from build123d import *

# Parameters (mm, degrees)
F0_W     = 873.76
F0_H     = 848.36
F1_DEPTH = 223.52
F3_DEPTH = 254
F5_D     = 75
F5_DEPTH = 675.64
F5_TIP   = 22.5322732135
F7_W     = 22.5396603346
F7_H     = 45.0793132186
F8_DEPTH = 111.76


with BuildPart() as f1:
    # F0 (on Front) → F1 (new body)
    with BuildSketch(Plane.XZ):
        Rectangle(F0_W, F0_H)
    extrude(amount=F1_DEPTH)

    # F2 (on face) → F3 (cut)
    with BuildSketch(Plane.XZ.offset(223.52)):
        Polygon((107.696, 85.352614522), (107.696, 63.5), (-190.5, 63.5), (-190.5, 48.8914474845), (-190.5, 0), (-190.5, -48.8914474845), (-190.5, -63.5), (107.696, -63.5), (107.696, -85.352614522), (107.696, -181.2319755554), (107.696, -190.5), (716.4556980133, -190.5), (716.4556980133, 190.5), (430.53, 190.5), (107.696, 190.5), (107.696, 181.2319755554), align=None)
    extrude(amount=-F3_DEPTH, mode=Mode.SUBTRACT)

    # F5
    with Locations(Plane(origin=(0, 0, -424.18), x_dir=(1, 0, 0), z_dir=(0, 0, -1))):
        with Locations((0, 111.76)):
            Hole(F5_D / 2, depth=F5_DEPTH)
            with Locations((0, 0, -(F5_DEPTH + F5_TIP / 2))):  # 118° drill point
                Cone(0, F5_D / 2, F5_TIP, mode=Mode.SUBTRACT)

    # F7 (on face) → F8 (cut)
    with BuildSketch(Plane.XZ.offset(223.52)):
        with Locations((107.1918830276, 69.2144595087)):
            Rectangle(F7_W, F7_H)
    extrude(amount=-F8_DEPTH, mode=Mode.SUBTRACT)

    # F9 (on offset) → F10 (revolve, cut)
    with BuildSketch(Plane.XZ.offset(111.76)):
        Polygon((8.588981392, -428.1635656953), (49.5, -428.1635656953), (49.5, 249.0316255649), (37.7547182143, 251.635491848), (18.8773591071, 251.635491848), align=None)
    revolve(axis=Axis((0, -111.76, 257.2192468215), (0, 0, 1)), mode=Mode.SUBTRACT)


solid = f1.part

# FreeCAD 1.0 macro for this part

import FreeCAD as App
import Part
import Sketcher
from FreeCAD import Vector
Q = App.Units.Quantity

doc = App.newDocument("Part")
body = doc.addObject("PartDesign::Body", "Body")

# Sketch on XZ plane
sketch1 = body.newObject("Sketcher::SketchObject", "Sketch")
sketch1.AttachmentSupport = (doc.getObject("XZ_Plane"), [""])
sketch1.MapMode = "FlatFace"
sketch1.addGeometry([
    Part.LineSegment(Vector(-437, 424, 0), Vector(-437, -424, 0)),
    Part.LineSegment(Vector(-437, -424, 0), Vector(437, -424, 0)),
    Part.LineSegment(Vector(437, -424, 0), Vector(437, 424, 0)),
    Part.LineSegment(Vector(437, 424, 0), Vector(-437, 424, 0)),
], False)
sketch1.addConstraint([
    Sketcher.Constraint("Coincident", 0, 2, 1, 1),
    Sketcher.Constraint("Coincident", 1, 2, 2, 1),
    Sketcher.Constraint("Coincident", 2, 2, 3, 1),
    Sketcher.Constraint("Coincident", 3, 2, 0, 1),
    Sketcher.Constraint("Vertical", 0),
    Sketcher.Constraint("Horizontal", 1),
    Sketcher.Constraint("Vertical", 2),
    Sketcher.Constraint("Horizontal", 3),
    Sketcher.Constraint("Symmetric", 0, 2, 2, 2, -1, 1),
    Sketcher.Constraint("DistanceX", 1, 1, 1, 2, Q("34.4 in")),
    Sketcher.Constraint("DistanceY", 0, 2, 0, 1, Q("33.4 in")),
])
pad1 = body.newObject("PartDesign::Pad", "Pad")
pad1.Profile = sketch1
pad1.Length = Q("8.8 in")

# Sketch on XZ plane
sketch2 = body.newObject("Sketcher::SketchObject", "Sketch001")
sketch2.AttachmentSupport = (doc.getObject("XZ_Plane"), [""])
sketch2.MapMode = "FlatFace"
sketch2.AttachmentOffset = App.Placement(Vector(0, 0, 8.8 * 25.4), App.Rotation())
sketch2.addGeometry([
    Part.LineSegment(Vector(108, 64, 0), Vector(-190, 64, 0)),  # 0
    Part.LineSegment(Vector(-190, 64, 0), Vector(-190, -64, 0)),  # 1
    Part.LineSegment(Vector(-190, -64, 0), Vector(108, -64, 0)),  # 2
    Part.LineSegment(Vector(108, -64, 0), Vector(108, -190, 0)),  # 3
    Part.LineSegment(Vector(108, -190, 0), Vector(716, -190, 0)),  # 4
    Part.LineSegment(Vector(716, -190, 0), Vector(716, 190, 0)),  # 5
    Part.LineSegment(Vector(716, 190, 0), Vector(108, 190, 0)),  # 6
    Part.LineSegment(Vector(108, 190, 0), Vector(108, 64, 0)),  # 7
], False)
sketch2.addConstraint([
    Sketcher.Constraint("Coincident", 0, 2, 1, 1),
    Sketcher.Constraint("Coincident", 1, 2, 2, 1),
    Sketcher.Constraint("Coincident", 2, 2, 3, 1),
    Sketcher.Constraint("Coincident", 3, 2, 4, 1),
    Sketcher.Constraint("Coincident", 4, 2, 5, 1),
    Sketcher.Constraint("Coincident", 5, 2, 6, 1),
    Sketcher.Constraint("Coincident", 6, 2, 7, 1),
    Sketcher.Constraint("Coincident", 7, 2, 0, 1),
    Sketcher.Constraint("Horizontal", 0),
    Sketcher.Constraint("Vertical", 1),
    Sketcher.Constraint("Horizontal", 2),
    Sketcher.Constraint("Vertical", 3),
    Sketcher.Constraint("Horizontal", 4),
    Sketcher.Constraint("Vertical", 5),
    Sketcher.Constraint("Horizontal", 6),
    Sketcher.Constraint("Vertical", 7),
    Sketcher.Constraint("Symmetric", 3, 2, 6, 2, -1),
    Sketcher.Constraint("Equal", 1, 3),
    Sketcher.Constraint("Equal", 3, 7),
    Sketcher.Constraint("DistanceY", 1, 2, 1, 1, Q("5 in")),
    Sketcher.Constraint("DistanceX", 0, 2, 0, 1, Q("11.74 in")),
    Sketcher.Constraint("DistanceX", 0, 2, -1, 1, Q("7.5 in")),
    Sketcher.Constraint("DistanceX", 4, 1, 4, 2, 608.759698),
])
pocket1 = body.newObject("PartDesign::Pocket", "Pocket")
pocket1.Profile = sketch2
pocket1.Length = Q("10 in")

# Sketch on XY plane
sketch3 = body.newObject("Sketcher::SketchObject", "Sketch002")
sketch3.AttachmentSupport = (doc.getObject("XY_Plane"), [""])
sketch3.MapMode = "FlatFace"
sketch3.AttachmentOffset = App.Placement(Vector(0, 0, -16.7 * 25.4), App.Rotation())
sketch3.addGeometry(Part.Circle(Vector(0, -112, 0), Vector(0, 0, 1), 38), False)
sketch3.addConstraint([
    Sketcher.Constraint("PointOnObject", 0, 3, -2),
    Sketcher.Constraint("DistanceY", 0, 3, -1, 1, Q("4.4 in")),
    Sketcher.Constraint("Diameter", 0, 75.0),
])
doc.recompute()
hole = body.newObject("PartDesign::Hole", "Hole")
hole.Profile = sketch3
hole.ThreadType = "None"
hole.Diameter = 75
hole.DepthType = "Dimension"
hole.Depth = Q("26.6 in")
hole.DrillPoint = "Angled"
hole.DrillPointAngle = 118
hole.Reversed = True

# Sketch on XZ plane
sketch4 = body.newObject("Sketcher::SketchObject", "Sketch003")
sketch4.AttachmentSupport = (doc.getObject("XZ_Plane"), [""])
sketch4.MapMode = "FlatFace"
sketch4.AttachmentOffset = App.Placement(Vector(0, 0, 8.8 * 25.4), App.Rotation())
sketch4.addGeometry([
    Part.LineSegment(Vector(96, 92, 0), Vector(96, 47, 0)),
    Part.LineSegment(Vector(96, 47, 0), Vector(118, 47, 0)),
    Part.LineSegment(Vector(118, 47, 0), Vector(118, 92, 0)),
    Part.LineSegment(Vector(118, 92, 0), Vector(96, 92, 0)),
], False)
sketch4.addConstraint([
    Sketcher.Constraint("Coincident", 0, 2, 1, 1),
    Sketcher.Constraint("Coincident", 1, 2, 2, 1),
    Sketcher.Constraint("Coincident", 2, 2, 3, 1),
    Sketcher.Constraint("Coincident", 3, 2, 0, 1),
    Sketcher.Constraint("Vertical", 0),
    Sketcher.Constraint("Horizontal", 1),
    Sketcher.Constraint("Vertical", 2),
    Sketcher.Constraint("Horizontal", 3),
    Sketcher.Constraint("DistanceX", 1, 1, 1, 2, 22.53966),
    Sketcher.Constraint("DistanceY", 0, 2, 0, 1, 45.079313),
    Sketcher.Constraint("DistanceX", -1, 1, 0, 2, 95.922053),
    Sketcher.Constraint("DistanceY", -1, 1, 0, 2, 46.674803),
])
pocket2 = body.newObject("PartDesign::Pocket", "Pocket001")
pocket2.Profile = sketch4
pocket2.Length = Q("4.4 in")

# Sketch on XZ plane
sketch5 = body.newObject("Sketcher::SketchObject", "Sketch004")
sketch5.AttachmentSupport = (doc.getObject("XZ_Plane"), [""])
sketch5.MapMode = "FlatFace"
sketch5.AttachmentOffset = App.Placement(Vector(0, 0, 4.4 * 25.4), App.Rotation())
sketch5.addGeometry([
    Part.LineSegment(Vector(9, -428, 0), Vector(50, -428, 0)),  # 0
    Part.LineSegment(Vector(50, -428, 0), Vector(50, 249, 0)),  # 1
    Part.LineSegment(Vector(50, 249, 0), Vector(38, 252, 0)),  # 2
    Part.LineSegment(Vector(38, 252, 0), Vector(19, 252, 0)),  # 3
    Part.LineSegment(Vector(19, 252, 0), Vector(9, -428, 0)),  # 4
], False)
sketch5.addConstraint([
    Sketcher.Constraint("Coincident", 0, 2, 1, 1),
    Sketcher.Constraint("Coincident", 1, 2, 2, 1),
    Sketcher.Constraint("Coincident", 2, 2, 3, 1),
    Sketcher.Constraint("Coincident", 3, 2, 4, 1),
    Sketcher.Constraint("Coincident", 4, 2, 0, 1),
    Sketcher.Constraint("Horizontal", 0),
    Sketcher.Constraint("Vertical", 1),
    Sketcher.Constraint("Horizontal", 3),
    Sketcher.Constraint("Angle", 2, Q("167.5 deg")),
    Sketcher.Constraint("DistanceX", 0, 1, 0, 2, 40.911019),
    Sketcher.Constraint("DistanceX", 3, 2, 3, 1, 18.877359),
    Sketcher.Constraint("DistanceY", 1, 1, 1, 2, 677.195191),
    Sketcher.Constraint("DistanceX", -1, 1, 0, 2, 49.5),
    Sketcher.Constraint("Distance", 2, 12.030452),
    Sketcher.Constraint("DistanceY", -1, 1, 2, 2, 251.635492),
])
groove = body.newObject("PartDesign::Groove", "Groove")
groove.Profile = sketch5
groove.ReferenceAxis = (sketch5, ["V_Axis"])
groove.Angle = 360

doc.recompute()
